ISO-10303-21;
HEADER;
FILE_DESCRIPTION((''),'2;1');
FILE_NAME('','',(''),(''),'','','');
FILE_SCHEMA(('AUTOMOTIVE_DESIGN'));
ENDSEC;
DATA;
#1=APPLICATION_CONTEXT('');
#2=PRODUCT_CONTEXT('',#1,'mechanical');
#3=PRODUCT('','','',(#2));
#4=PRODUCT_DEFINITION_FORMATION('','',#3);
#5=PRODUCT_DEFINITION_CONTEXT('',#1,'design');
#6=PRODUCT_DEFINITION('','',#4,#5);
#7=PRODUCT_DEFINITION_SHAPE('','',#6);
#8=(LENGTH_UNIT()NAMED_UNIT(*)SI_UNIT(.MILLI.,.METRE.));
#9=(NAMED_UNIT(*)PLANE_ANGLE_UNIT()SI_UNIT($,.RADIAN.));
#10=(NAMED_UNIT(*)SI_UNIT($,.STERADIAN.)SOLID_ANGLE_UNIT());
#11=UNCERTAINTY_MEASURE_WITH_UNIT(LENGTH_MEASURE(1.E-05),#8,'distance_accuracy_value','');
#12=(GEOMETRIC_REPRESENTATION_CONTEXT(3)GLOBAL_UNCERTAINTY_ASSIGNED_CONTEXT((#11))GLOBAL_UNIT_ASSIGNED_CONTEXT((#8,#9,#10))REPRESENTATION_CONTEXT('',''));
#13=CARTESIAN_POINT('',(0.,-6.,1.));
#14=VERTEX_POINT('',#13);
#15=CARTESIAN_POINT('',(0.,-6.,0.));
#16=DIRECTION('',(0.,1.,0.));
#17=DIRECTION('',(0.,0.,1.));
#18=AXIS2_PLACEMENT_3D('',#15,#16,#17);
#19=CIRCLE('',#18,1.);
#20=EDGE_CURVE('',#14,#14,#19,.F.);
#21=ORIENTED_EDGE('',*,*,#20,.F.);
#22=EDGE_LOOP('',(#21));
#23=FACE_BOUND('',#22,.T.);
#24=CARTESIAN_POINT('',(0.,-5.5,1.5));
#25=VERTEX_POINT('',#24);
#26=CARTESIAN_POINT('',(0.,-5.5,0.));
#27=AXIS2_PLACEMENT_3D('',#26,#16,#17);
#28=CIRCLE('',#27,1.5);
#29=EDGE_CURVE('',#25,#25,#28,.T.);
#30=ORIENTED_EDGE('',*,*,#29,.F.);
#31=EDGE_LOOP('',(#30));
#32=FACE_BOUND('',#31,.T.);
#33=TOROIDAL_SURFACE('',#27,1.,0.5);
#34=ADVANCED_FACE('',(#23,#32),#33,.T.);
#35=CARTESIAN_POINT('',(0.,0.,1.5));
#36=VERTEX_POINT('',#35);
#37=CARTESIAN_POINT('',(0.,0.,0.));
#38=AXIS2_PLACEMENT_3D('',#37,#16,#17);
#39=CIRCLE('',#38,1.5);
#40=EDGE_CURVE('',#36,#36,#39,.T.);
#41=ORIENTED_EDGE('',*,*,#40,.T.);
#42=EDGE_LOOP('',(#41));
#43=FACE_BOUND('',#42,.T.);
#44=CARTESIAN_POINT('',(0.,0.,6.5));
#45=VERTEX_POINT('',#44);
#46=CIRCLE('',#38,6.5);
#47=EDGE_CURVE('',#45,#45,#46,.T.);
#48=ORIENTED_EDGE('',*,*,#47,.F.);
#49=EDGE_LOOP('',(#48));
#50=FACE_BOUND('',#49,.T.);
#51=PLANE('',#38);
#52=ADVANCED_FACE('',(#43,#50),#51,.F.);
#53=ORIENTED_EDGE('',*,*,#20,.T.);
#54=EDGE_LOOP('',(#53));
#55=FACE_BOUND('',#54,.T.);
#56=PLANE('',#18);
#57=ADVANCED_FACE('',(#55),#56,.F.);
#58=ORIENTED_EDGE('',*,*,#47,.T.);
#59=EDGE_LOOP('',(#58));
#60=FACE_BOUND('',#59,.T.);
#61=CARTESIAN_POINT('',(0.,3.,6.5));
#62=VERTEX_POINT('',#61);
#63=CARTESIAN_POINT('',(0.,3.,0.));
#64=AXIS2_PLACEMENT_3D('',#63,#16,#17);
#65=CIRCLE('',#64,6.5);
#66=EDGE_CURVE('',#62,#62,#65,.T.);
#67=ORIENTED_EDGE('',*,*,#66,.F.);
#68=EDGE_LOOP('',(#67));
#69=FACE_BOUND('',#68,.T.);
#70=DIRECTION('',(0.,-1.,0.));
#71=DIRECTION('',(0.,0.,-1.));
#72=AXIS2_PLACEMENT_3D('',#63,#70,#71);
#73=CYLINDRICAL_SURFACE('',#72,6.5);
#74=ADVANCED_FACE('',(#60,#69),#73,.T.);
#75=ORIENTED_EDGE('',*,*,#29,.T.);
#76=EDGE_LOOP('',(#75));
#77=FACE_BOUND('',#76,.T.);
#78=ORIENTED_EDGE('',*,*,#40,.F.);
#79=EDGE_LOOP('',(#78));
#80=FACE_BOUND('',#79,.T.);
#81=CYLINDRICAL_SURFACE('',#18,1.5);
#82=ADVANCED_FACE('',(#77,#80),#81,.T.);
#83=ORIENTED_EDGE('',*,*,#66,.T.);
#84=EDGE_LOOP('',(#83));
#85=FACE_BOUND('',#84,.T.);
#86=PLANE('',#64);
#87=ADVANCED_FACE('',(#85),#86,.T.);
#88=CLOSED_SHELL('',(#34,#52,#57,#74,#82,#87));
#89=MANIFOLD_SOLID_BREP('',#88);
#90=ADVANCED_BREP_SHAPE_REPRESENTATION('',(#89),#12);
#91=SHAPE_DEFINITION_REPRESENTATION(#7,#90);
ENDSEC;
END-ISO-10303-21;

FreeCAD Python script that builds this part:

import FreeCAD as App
import Part
import Sketcher
from FreeCAD import Vector


def edges_at(feature, points):
    """Names of the edges that pass closest to the given points."""
    edges = feature.Shape.Edges
    near = lambda p: min(range(len(edges)), key=lambda i: edges[i].distToShape(Part.Vertex(*p))[0])
    return sorted({f"Edge{near(p) + 1}" for p in points})

doc = App.newDocument("Part")
body = doc.addObject("PartDesign::Body", "Body")

# Sketch on XZ plane
sketch1 = body.newObject("Sketcher::SketchObject", "Sketch")
sketch1.AttachmentSupport = (doc.getObject("XZ_Plane"), [""])
sketch1.MapMode = "FlatFace"
sketch1.addGeometry(Part.Circle(Vector(0, 0, 0), Vector(0, 0, 1), 6), False)
sketch1.addConstraint(Sketcher.Constraint("Coincident", 0, 3, -1, 1))
sketch1.addConstraint(Sketcher.Constraint("Diameter", 0, 13.0))
pad1 = body.newObject("PartDesign::Pad", "Pad")
pad1.Profile = sketch1
pad1.Length = 3
pad1.Reversed = True

# Sketch on XZ plane
sketch2 = body.newObject("Sketcher::SketchObject", "Sketch001")
sketch2.AttachmentSupport = (doc.getObject("XZ_Plane"), [""])
sketch2.MapMode = "FlatFace"
sketch2.addGeometry(Part.Circle(Vector(0, 0, 0), Vector(0, 0, 1), 1.5), False)
sketch2.addConstraint(Sketcher.Constraint("Coincident", 0, 3, -1, 1))
sketch2.addConstraint(Sketcher.Constraint("Diameter", 0, 3.0))
pad2 = body.newObject("PartDesign::Pad", "Pad001")
pad2.Profile = sketch2
pad2.Length = 6
doc.recompute()

fillet = body.newObject("PartDesign::Fillet", "Fillet")
fillet.Base = (pad2, edges_at(pad2, [(0, -6, -1.5)]))
fillet.Radius = 0.5

doc.recompute()
